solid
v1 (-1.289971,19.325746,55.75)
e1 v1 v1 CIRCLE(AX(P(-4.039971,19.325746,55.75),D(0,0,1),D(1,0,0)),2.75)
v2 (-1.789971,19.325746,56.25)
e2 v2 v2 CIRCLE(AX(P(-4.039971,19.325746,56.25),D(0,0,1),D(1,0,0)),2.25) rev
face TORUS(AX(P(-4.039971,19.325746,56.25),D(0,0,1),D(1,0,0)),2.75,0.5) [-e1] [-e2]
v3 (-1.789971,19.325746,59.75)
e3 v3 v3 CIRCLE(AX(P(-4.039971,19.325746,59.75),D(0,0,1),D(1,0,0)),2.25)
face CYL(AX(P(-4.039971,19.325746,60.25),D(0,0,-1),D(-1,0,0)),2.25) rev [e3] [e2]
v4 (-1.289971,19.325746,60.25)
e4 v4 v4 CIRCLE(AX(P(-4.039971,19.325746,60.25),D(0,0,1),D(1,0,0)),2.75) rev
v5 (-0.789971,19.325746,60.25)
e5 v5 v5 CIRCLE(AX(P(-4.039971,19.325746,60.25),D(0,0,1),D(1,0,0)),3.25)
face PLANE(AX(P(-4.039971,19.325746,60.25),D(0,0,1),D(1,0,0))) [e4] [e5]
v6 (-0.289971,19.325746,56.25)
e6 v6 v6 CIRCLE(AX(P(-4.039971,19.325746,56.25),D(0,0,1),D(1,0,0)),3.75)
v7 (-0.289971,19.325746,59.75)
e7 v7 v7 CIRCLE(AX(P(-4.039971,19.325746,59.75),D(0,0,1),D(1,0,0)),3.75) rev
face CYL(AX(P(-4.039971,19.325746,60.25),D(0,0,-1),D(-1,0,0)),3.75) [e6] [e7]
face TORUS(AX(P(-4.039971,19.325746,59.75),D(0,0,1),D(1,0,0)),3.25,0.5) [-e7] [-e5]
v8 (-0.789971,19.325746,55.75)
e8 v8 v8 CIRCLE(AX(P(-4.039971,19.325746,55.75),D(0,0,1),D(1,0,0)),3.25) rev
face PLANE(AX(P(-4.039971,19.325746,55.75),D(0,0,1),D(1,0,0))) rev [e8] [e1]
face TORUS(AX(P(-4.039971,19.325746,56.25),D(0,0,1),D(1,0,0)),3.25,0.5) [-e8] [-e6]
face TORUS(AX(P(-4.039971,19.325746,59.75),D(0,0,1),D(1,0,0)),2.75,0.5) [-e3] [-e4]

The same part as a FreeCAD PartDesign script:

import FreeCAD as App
import Part
import Sketcher
from FreeCAD import Vector
Q = App.Units.Quantity


def edges_at(feature, points):
    """Names of the edges that pass closest to the given points."""
    edges = feature.Shape.Edges
    near = lambda p: min(range(len(edges)), key=lambda i: edges[i].distToShape(Part.Vertex(*p))[0])
    return sorted({f"Edge{near(p) + 1}" for p in points})

doc = App.newDocument("Part")
body = doc.addObject("PartDesign::Body", "Body")

# Sketch on XY plane
sketch1 = doc.addObject("Sketcher::SketchObject", "Sketch")
body.addObject(sketch1)
sketch1.AttachmentSupport = (doc.XY_Plane, [""])
sketch1.MapMode = "FlatFace"
sketch1.AttachmentOffset = App.Placement(Vector(0, 0, 58), App.Rotation())
sketch1.addGeometry(Part.Circle(Vector(-4, 19.3, 0), Vector(0, 0, 1), 3.8), False)
sketch1.addGeometry(Part.Circle(Vector(-4, 19.3, 0), Vector(0, 0, 1), 2.2), False)
sketch1.addConstraint(Sketcher.Constraint("Coincident", 1, 3, 0, 3))
sketch1.addConstraint(Sketcher.Constraint("Diameter", 0, Q("7.5 mm")))
sketch1.addConstraint(Sketcher.Constraint("Diameter", 1, Q("4.5 mm")))
sketch1.addConstraint(Sketcher.Constraint("DistanceX", 0, 3, -1, 1, Q("4.039971 mm")))
sketch1.addConstraint(Sketcher.Constraint("DistanceY", -1, 1, 0, 3, Q("19.325746 mm")))
pad1 = doc.addObject("PartDesign::Pad", "Pad")
body.addObject(pad1)
pad1.Profile = sketch1
pad1.Length = 4.5
pad1.Midplane = True
doc.recompute()

fillet = doc.addObject("PartDesign::Fillet", "Fillet")
body.addObject(fillet)
fillet.Base = (pad1, edges_at(pad1, [
    (-7.79, 19.326, 55.75),
    (-7.79, 19.326, 60.25),
    (-6.29, 19.326, 55.75),
    (-6.29, 19.326, 60.25),
]))
fillet.Radius = 0.5

doc.recompute()
